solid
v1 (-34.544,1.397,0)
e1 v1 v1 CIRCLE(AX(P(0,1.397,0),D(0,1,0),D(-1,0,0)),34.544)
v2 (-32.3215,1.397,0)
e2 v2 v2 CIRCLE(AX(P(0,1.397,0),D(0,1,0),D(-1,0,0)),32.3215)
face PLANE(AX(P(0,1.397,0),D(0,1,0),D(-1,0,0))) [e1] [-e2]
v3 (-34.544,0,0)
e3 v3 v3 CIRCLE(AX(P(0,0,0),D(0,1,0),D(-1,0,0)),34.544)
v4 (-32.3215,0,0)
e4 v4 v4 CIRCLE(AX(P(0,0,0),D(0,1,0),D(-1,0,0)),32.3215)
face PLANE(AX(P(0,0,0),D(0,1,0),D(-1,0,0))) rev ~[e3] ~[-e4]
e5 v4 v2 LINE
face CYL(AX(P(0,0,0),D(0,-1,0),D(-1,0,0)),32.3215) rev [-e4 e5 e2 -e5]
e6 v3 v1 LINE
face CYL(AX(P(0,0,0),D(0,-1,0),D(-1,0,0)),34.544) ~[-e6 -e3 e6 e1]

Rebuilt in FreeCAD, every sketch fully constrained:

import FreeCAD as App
import Part
import Sketcher
Q = App.Units.Quantity

doc = App.newDocument("Part")
body = doc.addObject("PartDesign::Body", "Body")

# Sketch on XZ plane
sketch1 = doc.addObject("Sketcher::SketchObject", "Sketch")
body.addObject(sketch1)
sketch1.AttachmentSupport = (doc.XZ_Plane, [""])
sketch1.MapMode = "FlatFace"
sketch1.addGeometry([
    Part.Circle(App.Vector(0, 0, 0), App.Vector(0, 0, 1), 35),
    Part.Circle(App.Vector(0, 0, 0), App.Vector(0, 0, 1), 32),
], False)
sketch1.addConstraint([
    Sketcher.Constraint("Coincident", 0, 3, -1, 1),
    Sketcher.Constraint("Coincident", 1, 3, -1, 1),
    Sketcher.Constraint("Diameter", 0, Q("2.72 in")),
    Sketcher.Constraint("Diameter", 1, Q("2.545 in")),
])
pad1 = doc.addObject("PartDesign::Pad", "Pad")
body.addObject(pad1)
pad1.Profile = sketch1
pad1.Length = Q("0.055 in")
pad1.Reversed = True

doc.recompute()
